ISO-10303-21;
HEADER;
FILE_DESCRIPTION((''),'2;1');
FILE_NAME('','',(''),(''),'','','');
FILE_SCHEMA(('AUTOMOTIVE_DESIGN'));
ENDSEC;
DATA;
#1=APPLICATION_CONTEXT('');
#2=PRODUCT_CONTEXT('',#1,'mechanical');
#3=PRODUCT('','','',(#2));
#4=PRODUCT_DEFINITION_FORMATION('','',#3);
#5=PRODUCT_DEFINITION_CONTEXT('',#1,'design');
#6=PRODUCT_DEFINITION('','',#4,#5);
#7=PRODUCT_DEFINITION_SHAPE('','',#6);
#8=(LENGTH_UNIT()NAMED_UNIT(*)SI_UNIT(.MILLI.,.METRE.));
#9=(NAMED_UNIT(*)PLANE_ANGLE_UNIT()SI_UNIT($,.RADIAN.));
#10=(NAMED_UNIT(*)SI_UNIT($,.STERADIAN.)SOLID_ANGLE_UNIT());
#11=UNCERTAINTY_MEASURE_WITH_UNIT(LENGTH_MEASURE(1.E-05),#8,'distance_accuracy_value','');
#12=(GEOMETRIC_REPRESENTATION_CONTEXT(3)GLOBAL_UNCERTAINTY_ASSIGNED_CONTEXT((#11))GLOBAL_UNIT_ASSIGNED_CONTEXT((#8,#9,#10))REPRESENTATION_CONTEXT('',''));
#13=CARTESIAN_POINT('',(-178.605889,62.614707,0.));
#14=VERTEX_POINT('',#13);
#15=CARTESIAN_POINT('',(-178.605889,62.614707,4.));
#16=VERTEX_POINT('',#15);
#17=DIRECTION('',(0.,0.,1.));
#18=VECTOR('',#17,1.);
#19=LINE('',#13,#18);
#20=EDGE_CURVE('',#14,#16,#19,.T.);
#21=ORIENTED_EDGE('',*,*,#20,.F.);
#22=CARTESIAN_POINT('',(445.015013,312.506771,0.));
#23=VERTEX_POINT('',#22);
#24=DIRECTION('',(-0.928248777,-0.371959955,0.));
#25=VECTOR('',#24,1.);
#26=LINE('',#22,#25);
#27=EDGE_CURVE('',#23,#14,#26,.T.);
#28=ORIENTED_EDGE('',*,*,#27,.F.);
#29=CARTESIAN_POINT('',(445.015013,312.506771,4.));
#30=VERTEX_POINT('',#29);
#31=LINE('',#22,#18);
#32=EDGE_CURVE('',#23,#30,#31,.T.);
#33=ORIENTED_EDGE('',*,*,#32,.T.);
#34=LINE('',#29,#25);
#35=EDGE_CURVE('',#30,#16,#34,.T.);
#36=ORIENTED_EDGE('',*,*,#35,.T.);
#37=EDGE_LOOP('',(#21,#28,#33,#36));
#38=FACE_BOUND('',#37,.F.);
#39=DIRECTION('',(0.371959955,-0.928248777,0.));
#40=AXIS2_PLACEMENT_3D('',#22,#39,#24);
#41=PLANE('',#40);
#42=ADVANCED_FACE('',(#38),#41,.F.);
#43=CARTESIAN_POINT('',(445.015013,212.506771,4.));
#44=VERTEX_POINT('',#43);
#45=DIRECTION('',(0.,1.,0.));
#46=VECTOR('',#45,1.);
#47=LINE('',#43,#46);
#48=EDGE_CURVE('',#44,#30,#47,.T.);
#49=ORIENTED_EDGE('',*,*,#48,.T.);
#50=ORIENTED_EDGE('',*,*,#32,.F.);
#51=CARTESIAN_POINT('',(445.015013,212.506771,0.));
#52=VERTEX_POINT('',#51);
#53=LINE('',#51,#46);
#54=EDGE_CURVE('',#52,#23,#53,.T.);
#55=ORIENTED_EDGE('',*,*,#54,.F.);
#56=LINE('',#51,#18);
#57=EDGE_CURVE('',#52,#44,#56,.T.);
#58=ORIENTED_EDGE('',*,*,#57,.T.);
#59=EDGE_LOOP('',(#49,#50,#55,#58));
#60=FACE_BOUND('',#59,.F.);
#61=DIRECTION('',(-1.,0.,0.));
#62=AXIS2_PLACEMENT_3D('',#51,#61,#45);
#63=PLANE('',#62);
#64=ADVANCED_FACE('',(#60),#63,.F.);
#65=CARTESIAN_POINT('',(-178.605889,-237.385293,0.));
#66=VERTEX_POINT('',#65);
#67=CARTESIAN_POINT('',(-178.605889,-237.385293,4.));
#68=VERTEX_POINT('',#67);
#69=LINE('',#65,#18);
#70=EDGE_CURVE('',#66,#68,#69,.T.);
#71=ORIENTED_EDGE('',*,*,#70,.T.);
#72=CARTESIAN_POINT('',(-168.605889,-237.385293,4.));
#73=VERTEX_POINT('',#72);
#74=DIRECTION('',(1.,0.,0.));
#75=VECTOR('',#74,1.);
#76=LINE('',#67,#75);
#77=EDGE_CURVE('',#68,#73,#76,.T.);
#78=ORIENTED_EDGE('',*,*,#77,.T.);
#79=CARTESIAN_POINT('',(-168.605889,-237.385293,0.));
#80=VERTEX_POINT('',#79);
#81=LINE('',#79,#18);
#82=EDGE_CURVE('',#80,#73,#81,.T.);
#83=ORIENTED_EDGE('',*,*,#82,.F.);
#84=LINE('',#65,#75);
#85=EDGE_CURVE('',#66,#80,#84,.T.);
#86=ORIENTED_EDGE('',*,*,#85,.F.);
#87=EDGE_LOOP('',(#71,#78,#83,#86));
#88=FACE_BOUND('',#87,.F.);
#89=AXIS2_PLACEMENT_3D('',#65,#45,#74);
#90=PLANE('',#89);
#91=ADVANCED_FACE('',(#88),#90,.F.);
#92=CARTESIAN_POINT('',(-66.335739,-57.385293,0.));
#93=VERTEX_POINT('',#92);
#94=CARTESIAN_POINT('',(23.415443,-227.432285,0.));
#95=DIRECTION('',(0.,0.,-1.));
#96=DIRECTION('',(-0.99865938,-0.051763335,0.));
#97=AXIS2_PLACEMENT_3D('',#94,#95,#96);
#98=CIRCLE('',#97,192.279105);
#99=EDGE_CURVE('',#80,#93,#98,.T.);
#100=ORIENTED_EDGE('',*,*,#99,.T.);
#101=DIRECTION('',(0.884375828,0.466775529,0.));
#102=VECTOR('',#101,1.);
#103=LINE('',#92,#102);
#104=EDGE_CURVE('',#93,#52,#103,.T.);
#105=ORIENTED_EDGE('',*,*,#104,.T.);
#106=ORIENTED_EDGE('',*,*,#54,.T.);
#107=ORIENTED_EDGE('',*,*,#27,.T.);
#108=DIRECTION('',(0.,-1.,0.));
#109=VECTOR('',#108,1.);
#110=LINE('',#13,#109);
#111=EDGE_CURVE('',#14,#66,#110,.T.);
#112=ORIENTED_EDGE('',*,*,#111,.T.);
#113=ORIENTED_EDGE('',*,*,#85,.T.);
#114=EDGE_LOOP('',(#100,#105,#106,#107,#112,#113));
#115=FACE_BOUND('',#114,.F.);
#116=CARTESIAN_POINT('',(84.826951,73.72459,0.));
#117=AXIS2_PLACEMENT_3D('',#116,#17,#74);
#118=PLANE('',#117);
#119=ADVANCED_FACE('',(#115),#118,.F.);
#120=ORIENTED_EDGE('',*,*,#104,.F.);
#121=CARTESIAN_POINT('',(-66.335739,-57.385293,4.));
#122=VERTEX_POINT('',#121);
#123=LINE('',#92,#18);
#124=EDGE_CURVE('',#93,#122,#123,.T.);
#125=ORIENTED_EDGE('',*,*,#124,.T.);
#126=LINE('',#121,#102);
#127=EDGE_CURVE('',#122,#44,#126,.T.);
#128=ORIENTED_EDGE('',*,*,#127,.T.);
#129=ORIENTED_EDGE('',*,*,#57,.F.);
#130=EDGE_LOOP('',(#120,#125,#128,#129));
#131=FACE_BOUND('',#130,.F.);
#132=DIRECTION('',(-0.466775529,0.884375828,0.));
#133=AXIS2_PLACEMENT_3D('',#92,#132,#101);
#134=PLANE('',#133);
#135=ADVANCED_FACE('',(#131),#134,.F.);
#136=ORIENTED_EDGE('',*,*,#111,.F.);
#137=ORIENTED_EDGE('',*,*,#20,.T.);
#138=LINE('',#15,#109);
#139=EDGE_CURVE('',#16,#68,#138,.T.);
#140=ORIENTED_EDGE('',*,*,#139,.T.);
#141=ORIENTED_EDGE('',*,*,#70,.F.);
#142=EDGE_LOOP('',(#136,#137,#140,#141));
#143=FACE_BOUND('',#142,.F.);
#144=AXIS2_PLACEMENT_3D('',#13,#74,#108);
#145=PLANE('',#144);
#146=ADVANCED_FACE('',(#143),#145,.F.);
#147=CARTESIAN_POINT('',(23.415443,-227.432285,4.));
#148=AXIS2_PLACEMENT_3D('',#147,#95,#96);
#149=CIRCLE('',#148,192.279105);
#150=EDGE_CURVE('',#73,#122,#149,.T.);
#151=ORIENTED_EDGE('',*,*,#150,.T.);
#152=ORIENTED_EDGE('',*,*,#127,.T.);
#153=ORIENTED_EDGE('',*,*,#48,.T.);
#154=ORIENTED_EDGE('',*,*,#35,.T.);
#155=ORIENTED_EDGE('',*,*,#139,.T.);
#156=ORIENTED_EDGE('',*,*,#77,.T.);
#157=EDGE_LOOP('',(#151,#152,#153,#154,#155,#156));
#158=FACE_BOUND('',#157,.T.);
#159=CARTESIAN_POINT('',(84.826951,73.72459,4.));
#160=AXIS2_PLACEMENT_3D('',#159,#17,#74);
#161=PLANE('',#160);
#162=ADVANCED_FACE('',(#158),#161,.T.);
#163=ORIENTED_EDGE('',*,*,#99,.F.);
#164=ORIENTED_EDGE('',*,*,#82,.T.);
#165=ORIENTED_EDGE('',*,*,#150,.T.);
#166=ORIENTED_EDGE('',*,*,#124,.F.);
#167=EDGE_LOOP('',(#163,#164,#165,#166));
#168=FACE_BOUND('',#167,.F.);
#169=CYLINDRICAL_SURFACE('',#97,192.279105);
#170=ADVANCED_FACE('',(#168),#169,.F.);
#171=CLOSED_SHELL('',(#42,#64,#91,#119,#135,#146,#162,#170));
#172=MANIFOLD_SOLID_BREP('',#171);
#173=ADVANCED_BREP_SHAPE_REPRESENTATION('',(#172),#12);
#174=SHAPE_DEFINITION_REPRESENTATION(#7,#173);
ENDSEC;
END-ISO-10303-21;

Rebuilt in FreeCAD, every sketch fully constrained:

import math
import FreeCAD as App
import Part
import Sketcher

V = App.Vector

doc = App.newDocument("Part")
params = doc.addObject("Spreadsheet::Sheet", "Params")
for row, (alias, value) in enumerate([
    ("sketch1_width", "10 mm"),
    ("sketch1_height", "100 mm"),
    ("sketch1_height2", "300 mm"),
    ("pad1_length", "4 mm"),
], start=1):
    params.set(f"A{row}", alias)
    params.set(f"B{row}", "=" + value)
    params.setAlias(f"B{row}", alias)

body = doc.addObject("PartDesign::Body", "Body")

sketch1 = body.newObject("Sketcher::SketchObject", "Sketch")
sketch1.AttachmentSupport = (doc.getObject("XY_Plane"), [""])
sketch1.MapMode = "FlatFace"
sketch1.addGeometry(Part.ArcOfCircle(Part.Circle(V(23.415443, -227.432285, 0), V(0, 0, 1), 192.279105), math.radians(117.825192), math.radians(182.967147)), False)
sketch1.addGeometry(Part.LineSegment(V(-66.335739, -57.385293, 0), V(445.015013, 212.506771, 0)), False)
sketch1.addGeometry(Part.LineSegment(V(445.015013, 212.506771, 0), V(445.015013, 312.506771, 0)), False)
sketch1.addGeometry(Part.LineSegment(V(445.015013, 312.506771, 0), V(-178.605889, 62.614707, 0)), False)
sketch1.addGeometry(Part.LineSegment(V(-178.605889, 62.614707, 0), V(-178.605889, -237.385293, 0)), False)
sketch1.addGeometry(Part.LineSegment(V(-178.605889, -237.385293, 0), V(-168.605889, -237.385293, 0)), False)
sketch1.addConstraint(Sketcher.Constraint("Tangent", 0, 1, 1, 1))
sketch1.addConstraint(Sketcher.Constraint("Coincident", 1, 2, 2, 1))
sketch1.addConstraint(Sketcher.Constraint("Coincident", 2, 2, 3, 1))
sketch1.addConstraint(Sketcher.Constraint("Coincident", 3, 2, 4, 1))
sketch1.addConstraint(Sketcher.Constraint("Coincident", 4, 2, 5, 1))
sketch1.addConstraint(Sketcher.Constraint("Coincident", 5, 2, 0, 2))
sketch1.addConstraint(Sketcher.Constraint("Vertical", 2))
sketch1.addConstraint(Sketcher.Constraint("Vertical", 4))
sketch1.addConstraint(Sketcher.Constraint("Horizontal", 5))
sketch1.addConstraint(Sketcher.Constraint("DistanceX", 5, 1, 5, 2, 10.0))
sketch1.addConstraint(Sketcher.Constraint("DistanceY", 2, 1, 2, 2, 100.0))
sketch1.addConstraint(Sketcher.Constraint("DistanceY", 4, 2, 4, 1, 300.0))
sketch1.addConstraint(Sketcher.Constraint("DistanceY", 0, 1, 3, 2, 120.0))
sketch1.addConstraint(Sketcher.Constraint("Radius", 0, 192.279105))
sketch1.addConstraint(Sketcher.Constraint("DistanceX", 3, 2, 1, 2, 623.620902))
sketch1.addConstraint(Sketcher.Constraint("Distance", 3, 671.82518))
sketch1.addConstraint(Sketcher.Constraint("DistanceY", -1, 1, 1, 2, 212.506771))
sketch1.addConstraint(Sketcher.Constraint("DistanceX", 3, 2, -1, 1, 178.605889))
sketch1.setExpression("Constraints[9]", "Params.sketch1_width")
sketch1.setExpression("Constraints[10]", "Params.sketch1_height")
sketch1.setExpression("Constraints[11]", "Params.sketch1_height2")
pad1 = body.newObject("PartDesign::Pad", "Pad")
pad1.Profile = sketch1
pad1.setExpression("Length", "Params.pad1_length")

doc.recompute()
